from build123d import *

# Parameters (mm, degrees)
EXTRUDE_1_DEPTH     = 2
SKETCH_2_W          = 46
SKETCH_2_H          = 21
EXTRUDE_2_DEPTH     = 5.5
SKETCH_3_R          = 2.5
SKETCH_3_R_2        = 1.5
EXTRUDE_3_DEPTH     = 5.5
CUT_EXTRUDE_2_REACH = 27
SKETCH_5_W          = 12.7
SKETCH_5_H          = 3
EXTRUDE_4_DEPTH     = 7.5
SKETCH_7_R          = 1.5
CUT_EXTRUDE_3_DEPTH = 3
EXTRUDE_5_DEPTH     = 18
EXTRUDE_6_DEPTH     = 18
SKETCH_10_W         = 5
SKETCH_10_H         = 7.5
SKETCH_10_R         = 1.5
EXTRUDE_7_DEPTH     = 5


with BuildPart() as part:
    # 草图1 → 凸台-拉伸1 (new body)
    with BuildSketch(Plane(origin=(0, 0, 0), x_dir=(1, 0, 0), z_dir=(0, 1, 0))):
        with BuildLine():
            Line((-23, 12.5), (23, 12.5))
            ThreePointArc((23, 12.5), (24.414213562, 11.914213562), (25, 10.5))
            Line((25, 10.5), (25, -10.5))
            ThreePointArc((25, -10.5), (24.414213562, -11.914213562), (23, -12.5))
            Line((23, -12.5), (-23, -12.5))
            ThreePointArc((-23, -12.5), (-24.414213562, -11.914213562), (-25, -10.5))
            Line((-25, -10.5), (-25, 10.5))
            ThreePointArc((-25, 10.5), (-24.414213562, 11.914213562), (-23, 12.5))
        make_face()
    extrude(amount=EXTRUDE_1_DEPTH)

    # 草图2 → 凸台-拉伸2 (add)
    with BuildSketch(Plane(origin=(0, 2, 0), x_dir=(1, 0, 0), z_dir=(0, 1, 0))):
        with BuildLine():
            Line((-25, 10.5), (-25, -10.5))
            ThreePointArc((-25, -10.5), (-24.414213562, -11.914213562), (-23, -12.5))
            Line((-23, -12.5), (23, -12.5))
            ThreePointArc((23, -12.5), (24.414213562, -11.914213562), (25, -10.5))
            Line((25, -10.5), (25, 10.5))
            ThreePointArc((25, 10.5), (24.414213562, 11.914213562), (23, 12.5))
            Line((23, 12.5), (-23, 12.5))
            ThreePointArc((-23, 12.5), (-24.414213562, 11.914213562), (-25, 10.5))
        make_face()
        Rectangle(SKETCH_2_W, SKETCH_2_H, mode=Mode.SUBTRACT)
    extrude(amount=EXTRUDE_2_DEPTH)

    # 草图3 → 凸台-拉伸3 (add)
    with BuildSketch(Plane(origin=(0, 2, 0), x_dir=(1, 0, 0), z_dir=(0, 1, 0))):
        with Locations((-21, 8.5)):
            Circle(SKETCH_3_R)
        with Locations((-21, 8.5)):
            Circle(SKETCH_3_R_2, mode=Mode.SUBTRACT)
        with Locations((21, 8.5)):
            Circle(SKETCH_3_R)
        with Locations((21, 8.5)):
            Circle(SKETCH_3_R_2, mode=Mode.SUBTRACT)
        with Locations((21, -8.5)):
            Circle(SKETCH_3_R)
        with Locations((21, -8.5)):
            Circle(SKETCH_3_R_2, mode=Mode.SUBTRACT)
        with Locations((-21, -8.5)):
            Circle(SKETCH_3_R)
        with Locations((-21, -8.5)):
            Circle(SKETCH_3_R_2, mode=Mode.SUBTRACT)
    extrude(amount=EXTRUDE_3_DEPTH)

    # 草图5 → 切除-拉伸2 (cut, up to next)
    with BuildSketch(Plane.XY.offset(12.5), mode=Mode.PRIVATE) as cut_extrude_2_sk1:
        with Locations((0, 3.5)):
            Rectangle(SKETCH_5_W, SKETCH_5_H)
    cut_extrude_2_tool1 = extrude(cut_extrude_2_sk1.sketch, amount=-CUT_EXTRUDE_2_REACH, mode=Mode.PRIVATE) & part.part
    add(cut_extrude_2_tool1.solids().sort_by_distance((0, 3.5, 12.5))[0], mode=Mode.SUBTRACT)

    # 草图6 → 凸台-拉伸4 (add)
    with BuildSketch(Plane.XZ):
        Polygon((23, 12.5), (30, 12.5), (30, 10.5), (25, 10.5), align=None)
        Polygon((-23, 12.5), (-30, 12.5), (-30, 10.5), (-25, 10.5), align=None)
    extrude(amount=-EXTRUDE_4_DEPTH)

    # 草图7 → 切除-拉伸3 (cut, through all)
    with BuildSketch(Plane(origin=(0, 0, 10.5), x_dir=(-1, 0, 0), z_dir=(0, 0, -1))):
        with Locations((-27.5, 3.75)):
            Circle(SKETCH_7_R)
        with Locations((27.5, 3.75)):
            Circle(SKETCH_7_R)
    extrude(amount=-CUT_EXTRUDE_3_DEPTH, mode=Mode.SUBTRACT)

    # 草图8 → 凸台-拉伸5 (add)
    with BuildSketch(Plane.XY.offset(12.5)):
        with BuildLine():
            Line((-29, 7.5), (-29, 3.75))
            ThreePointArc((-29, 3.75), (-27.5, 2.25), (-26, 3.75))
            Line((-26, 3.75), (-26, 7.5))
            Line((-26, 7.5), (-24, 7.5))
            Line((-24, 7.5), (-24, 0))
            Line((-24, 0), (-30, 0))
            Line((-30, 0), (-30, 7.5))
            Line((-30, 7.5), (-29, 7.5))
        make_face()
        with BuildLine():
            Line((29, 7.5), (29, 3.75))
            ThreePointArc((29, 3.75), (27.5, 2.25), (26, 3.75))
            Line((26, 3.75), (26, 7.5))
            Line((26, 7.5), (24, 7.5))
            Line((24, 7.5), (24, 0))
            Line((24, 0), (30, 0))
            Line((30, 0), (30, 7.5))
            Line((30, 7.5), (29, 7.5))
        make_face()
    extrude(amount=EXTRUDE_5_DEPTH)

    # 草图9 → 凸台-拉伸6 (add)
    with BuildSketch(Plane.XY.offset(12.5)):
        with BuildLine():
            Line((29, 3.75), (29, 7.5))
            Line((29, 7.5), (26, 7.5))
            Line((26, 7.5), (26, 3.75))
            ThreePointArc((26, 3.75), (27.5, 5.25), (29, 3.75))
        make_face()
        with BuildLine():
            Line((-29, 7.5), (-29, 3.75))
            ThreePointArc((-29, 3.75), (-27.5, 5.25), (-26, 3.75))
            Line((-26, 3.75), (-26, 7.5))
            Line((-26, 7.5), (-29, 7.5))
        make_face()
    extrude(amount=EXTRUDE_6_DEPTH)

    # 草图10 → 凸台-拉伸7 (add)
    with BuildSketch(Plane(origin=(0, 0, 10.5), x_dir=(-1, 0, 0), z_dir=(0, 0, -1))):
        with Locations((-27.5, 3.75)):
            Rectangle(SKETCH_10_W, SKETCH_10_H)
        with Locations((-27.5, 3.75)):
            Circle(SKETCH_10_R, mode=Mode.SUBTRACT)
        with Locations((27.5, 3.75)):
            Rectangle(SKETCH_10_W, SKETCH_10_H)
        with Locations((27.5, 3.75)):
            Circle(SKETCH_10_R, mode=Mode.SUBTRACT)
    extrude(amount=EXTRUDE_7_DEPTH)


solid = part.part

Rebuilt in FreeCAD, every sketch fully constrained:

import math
import FreeCAD as App
import Part
import Sketcher
from FreeCAD import Vector
Q = App.Units.Quantity


def add_polygon(sketch, points):
    """Adds a closed chain of lines whose ends are joined by coincident constraints."""
    first, n = sketch.GeometryCount, len(points)
    for a, b in zip(points, points[1:] + points[:1]):
        sketch.addGeometry(Part.LineSegment(App.Vector(*a, 0), App.Vector(*b, 0)), False)
    for i in range(n):
        sketch.addConstraint(Sketcher.Constraint("Coincident", first + i, 2, first + (i + 1) % n, 1))

doc = App.newDocument("Part")
params = doc.addObject("Spreadsheet::Sheet", "Params")
for row, (alias, value) in enumerate([
    ("sketch1_radius", "2 mm"),
    ("sketch1_width", "46 mm"),
    ("sketch1_height", "21 mm"),
    ("pad1_length", "2 mm"),
    ("sketch2_radius", "2 mm"),
    ("sketch2_width", "46 mm"),
    ("sketch2_height", "21 mm"),
    ("pad2_length", "5.5 mm"),
    ("sketch3_diameter", "5 mm"),
    ("sketch3_diameter2", "3 mm"),
    ("pad3_length", "5.5 mm"),
    ("sketch4_height", "3 mm"),
    ("sketch4_width", "12.7 mm"),
    ("sketch5_width", "7 mm"),
    ("sketch5_width2", "5 mm"),
    ("pad4_length", "7.5 mm"),
    ("sketch6_diameter", "3 mm"),
    ("sketch7_radius", "1.5 mm"),
    ("sketch7_width", "1 mm"),
    ("sketch7_width2", "6 mm"),
    ("sketch7_height", "7.5 mm"),
    ("sketch7_height2", "3.75 mm"),
    ("pad5_length", "18 mm"),
    ("sketch8_radius", "1.5 mm"),
    ("sketch8_height", "3.75 mm"),
    ("pad6_length", "18 mm"),
    ("sketch9_diameter", "3 mm"),
    ("sketch9_width", "5 mm"),
    ("sketch9_height", "7.5 mm"),
    ("pad7_length", "5 mm"),
], start=1):
    params.set(f"A{row}", alias)
    params.set(f"B{row}", "=" + value)
    params.setAlias(f"B{row}", alias)

body = doc.addObject("PartDesign::Body", "Body")

# Sketch on XZ plane
sketch1 = body.newObject("Sketcher::SketchObject", "Sketch")
sketch1.AttachmentSupport = (doc.getObject("XZ_Plane"), [""])
sketch1.MapMode = "FlatFace"
sketch1.addGeometry([
    Part.LineSegment(Vector(23, -12.5, 0), Vector(-23, -12.5, 0)),  # 0
    Part.ArcOfCircle(Part.Circle(Vector(-23, -10.5, 0), Vector(0, 0, 1), 2), math.radians(-180), math.radians(-90)),  # 1
    Part.LineSegment(Vector(-25, -10.5, 0), Vector(-25, 10.5, 0)),  # 2
    Part.ArcOfCircle(Part.Circle(Vector(-23, 10.5, 0), Vector(0, 0, 1), 2), math.radians(90), math.radians(180)),  # 3
    Part.LineSegment(Vector(-23, 12.5, 0), Vector(23, 12.5, 0)),  # 4
    Part.ArcOfCircle(Part.Circle(Vector(23, 10.5, 0), Vector(0, 0, 1), 2), math.radians(0), math.radians(90)),  # 5
    Part.LineSegment(Vector(25, 10.5, 0), Vector(25, -10.5, 0)),  # 6
    Part.ArcOfCircle(Part.Circle(Vector(23, -10.5, 0), Vector(0, 0, 1), 2), math.radians(-90), math.radians(0)),  # 7
], False)
sketch1.addConstraint([
    Sketcher.Constraint("Tangent", 0, 2, 1, 2),
    Sketcher.Constraint("Tangent", 1, 1, 2, 1),
    Sketcher.Constraint("Tangent", 2, 2, 3, 2),
    Sketcher.Constraint("Tangent", 3, 1, 4, 1),
    Sketcher.Constraint("Tangent", 4, 2, 5, 2),
    Sketcher.Constraint("Tangent", 5, 1, 6, 1),
    Sketcher.Constraint("Tangent", 6, 2, 7, 2),
    Sketcher.Constraint("Tangent", 7, 1, 0, 1),
    Sketcher.Constraint("Horizontal", 0),
    Sketcher.Constraint("Vertical", 2),
    Sketcher.Constraint("Horizontal", 4),
    Sketcher.Constraint("Vertical", 6),
    Sketcher.Constraint("Equal", 1, 3),
    Sketcher.Constraint("Equal", 3, 5),
    Sketcher.Constraint("Equal", 5, 7),
    Sketcher.Constraint("Symmetric", 1, 3, 5, 3, -1, 1),
    Sketcher.Constraint("Radius", 1, Q("2 mm")),
    Sketcher.Constraint("DistanceX", 0, 2, 0, 1, Q("46 mm")),
    Sketcher.Constraint("DistanceY", 2, 1, 2, 2, Q("21 mm")),
])
sketch1.setExpression("Constraints[16]", "Params.sketch1_radius")
sketch1.setExpression("Constraints[17]", "Params.sketch1_width")
sketch1.setExpression("Constraints[18]", "Params.sketch1_height")
pad1 = body.newObject("PartDesign::Pad", "Pad")
pad1.Profile = sketch1
pad1.setExpression("Length", "Params.pad1_length")
pad1.Reversed = True

# Sketch on XZ plane
sketch2 = body.newObject("Sketcher::SketchObject", "Sketch001")
sketch2.AttachmentSupport = (doc.getObject("XZ_Plane"), [""])
sketch2.MapMode = "FlatFace"
sketch2.AttachmentOffset = App.Placement(Vector(0, 0, -2), App.Rotation())
sketch2.addGeometry(Part.LineSegment(Vector(-25, -10.5, 0), Vector(-25, 10.5, 0)), False)  # 0
sketch2.addGeometry(Part.ArcOfCircle(Part.Circle(Vector(-23, 10.5, 0), Vector(0, 0, 1), 2), math.radians(90), math.radians(180)), False)  # 1
sketch2.addGeometry(Part.LineSegment(Vector(-23, 12.5, 0), Vector(23, 12.5, 0)), False)  # 2
sketch2.addGeometry(Part.ArcOfCircle(Part.Circle(Vector(23, 10.5, 0), Vector(0, 0, 1), 2), math.radians(0), math.radians(90)), False)  # 3
sketch2.addGeometry(Part.LineSegment(Vector(25, 10.5, 0), Vector(25, -10.5, 0)), False)  # 4
sketch2.addGeometry(Part.ArcOfCircle(Part.Circle(Vector(23, -10.5, 0), Vector(0, 0, 1), 2), math.radians(-90), math.radians(0)), False)  # 5
sketch2.addGeometry(Part.LineSegment(Vector(23, -12.5, 0), Vector(-23, -12.5, 0)), False)  # 6
sketch2.addGeometry(Part.ArcOfCircle(Part.Circle(Vector(-23, -10.5, 0), Vector(0, 0, 1), 2), math.radians(-180), math.radians(-90)), False)  # 7
add_polygon(sketch2, [(23, 10.5), (-23, 10.5), (-23, -10.5), (23, -10.5)])  # lines 8-11
sketch2.addConstraint([
    Sketcher.Constraint("Tangent", 0, 2, 1, 2),
    Sketcher.Constraint("Tangent", 1, 1, 2, 1),
    Sketcher.Constraint("Tangent", 2, 2, 3, 2),
    Sketcher.Constraint("Tangent", 3, 1, 4, 1),
    Sketcher.Constraint("Tangent", 4, 2, 5, 2),
    Sketcher.Constraint("Tangent", 5, 1, 6, 1),
    Sketcher.Constraint("Tangent", 6, 2, 7, 2),
    Sketcher.Constraint("Tangent", 7, 1, 0, 1),
    Sketcher.Constraint("Vertical", 0),
    Sketcher.Constraint("Horizontal", 2),
    Sketcher.Constraint("Vertical", 4),
    Sketcher.Constraint("Horizontal", 6),
    Sketcher.Constraint("Horizontal", 8),
    Sketcher.Constraint("Vertical", 9),
    Sketcher.Constraint("Horizontal", 10),
    Sketcher.Constraint("Vertical", 11),
    Sketcher.Constraint("Coincident", 8, 2, 1, 3),
    Sketcher.Constraint("Coincident", 9, 2, 7, 3),
    Sketcher.Constraint("Coincident", 10, 2, 5, 3),
    Sketcher.Constraint("Equal", 1, 3),
    Sketcher.Constraint("Symmetric", 1, 3, 5, 3, -1, 1),
    Sketcher.Constraint("Radius", 1, Q("2 mm")),
    Sketcher.Constraint("DistanceX", 2, 1, 2, 2, Q("46 mm")),
    Sketcher.Constraint("DistanceY", 0, 1, 0, 2, Q("21 mm")),
])
sketch2.setExpression("Constraints[25]", "Params.sketch2_radius")
sketch2.setExpression("Constraints[26]", "Params.sketch2_width")
sketch2.setExpression("Constraints[27]", "Params.sketch2_height")
pad2 = body.newObject("PartDesign::Pad", "Pad001")
pad2.Profile = sketch2
pad2.setExpression("Length", "Params.pad2_length")
pad2.Reversed = True

# Sketch on XZ plane
sketch3 = body.newObject("Sketcher::SketchObject", "Sketch002")
sketch3.AttachmentSupport = (doc.getObject("XZ_Plane"), [""])
sketch3.MapMode = "FlatFace"
sketch3.AttachmentOffset = App.Placement(Vector(0, 0, -2), App.Rotation())
sketch3.addGeometry([
    Part.Circle(Vector(-21, -8.5, 0), Vector(0, 0, 1), 2.5),  # 0
    Part.Circle(Vector(-21, -8.5, 0), Vector(0, 0, 1), 1.5),  # 1
    Part.Circle(Vector(21, -8.5, 0), Vector(0, 0, 1), 2.5),  # 2
    Part.Circle(Vector(21, -8.5, 0), Vector(0, 0, 1), 1.5),  # 3
    Part.Circle(Vector(21, 8.5, 0), Vector(0, 0, 1), 2.5),  # 4
    Part.Circle(Vector(21, 8.5, 0), Vector(0, 0, 1), 1.5),  # 5
    Part.Circle(Vector(-21, 8.5, 0), Vector(0, 0, 1), 2.5),  # 6
    Part.Circle(Vector(-21, 8.5, 0), Vector(0, 0, 1), 1.5),  # 7
], False)
sketch3.addConstraint([
    Sketcher.Constraint("Coincident", 1, 3, 0, 3),
    Sketcher.Constraint("Coincident", 3, 3, 2, 3),
    Sketcher.Constraint("Coincident", 5, 3, 4, 3),
    Sketcher.Constraint("Coincident", 7, 3, 6, 3),
    Sketcher.Constraint("Equal", 0, 2),
    Sketcher.Constraint("Equal", 1, 3),
    Sketcher.Constraint("Equal", 2, 4),
    Sketcher.Constraint("Equal", 3, 5),
    Sketcher.Constraint("Equal", 4, 6),
    Sketcher.Constraint("Equal", 5, 7),
    Sketcher.Constraint("Symmetric", 0, 3, 4, 3, -1, 1),
    Sketcher.Constraint("Symmetric", 2, 3, 6, 3, -1, 1),
    Sketcher.Constraint("Symmetric", 0, 3, 2, 3, -2),
    Sketcher.Constraint("Diameter", 0, Q("5 mm")),
    Sketcher.Constraint("Diameter", 1, Q("3 mm")),
    Sketcher.Constraint("DistanceX", 0, 3, -1, 1, Q("21 mm")),
    Sketcher.Constraint("DistanceY", 2, 3, 4, 3, Q("17 mm")),
])
sketch3.setExpression("Constraints[13]", "Params.sketch3_diameter")
sketch3.setExpression("Constraints[14]", "Params.sketch3_diameter2")
pad3 = body.newObject("PartDesign::Pad", "Pad002")
pad3.Profile = sketch3
pad3.setExpression("Length", "Params.pad3_length")
pad3.Reversed = True

# Sketch on XY plane
sketch4 = body.newObject("Sketcher::SketchObject", "Sketch003")
sketch4.AttachmentSupport = (doc.getObject("XY_Plane"), [""])
sketch4.MapMode = "FlatFace"
sketch4.AttachmentOffset = App.Placement(Vector(0, 0, 12.5), App.Rotation())
add_polygon(sketch4, [(-6.35, 5), (-6.35, 2), (6.35, 2), (6.35, 5)])  # lines 0-3
sketch4.addConstraint([
    Sketcher.Constraint("Vertical", 0),
    Sketcher.Constraint("Horizontal", 1),
    Sketcher.Constraint("Vertical", 2),
    Sketcher.Constraint("Horizontal", 3),
    Sketcher.Constraint("DistanceY", 0, 2, 0, 1, Q("3 mm")),
    Sketcher.Constraint("DistanceX", 1, 1, 1, 2, Q("12.7 mm")),
    Sketcher.Constraint("DistanceY", -1, 1, 0, 2, Q("2 mm")),
    Sketcher.Constraint("DistanceX", 0, 2, -1, 1, Q("6.35 mm")),
])
sketch4.setExpression("Constraints[8]", "Params.sketch4_height")
sketch4.setExpression("Constraints[9]", "Params.sketch4_width")
pocket1 = body.newObject("PartDesign::Pocket", "Pocket")
pocket1.Profile = sketch4
pocket1.Type = "UpToFirst"

# Sketch on XZ plane
sketch5 = body.newObject("Sketcher::SketchObject", "Sketch004")
sketch5.AttachmentSupport = (doc.getObject("XZ_Plane"), [""])
sketch5.MapMode = "FlatFace"
add_polygon(sketch5, [(30, 12.5), (23, 12.5), (25, 10.5), (30, 10.5)])  # lines 0-3
add_polygon(sketch5, [(-23, 12.5), (-30, 12.5), (-30, 10.5), (-25, 10.5)])  # lines 4-7
sketch5.addConstraint([
    Sketcher.Constraint("Horizontal", 0),
    Sketcher.Constraint("Horizontal", 2),
    Sketcher.Constraint("Vertical", 3),
    Sketcher.Constraint("Horizontal", 4),
    Sketcher.Constraint("Vertical", 5),
    Sketcher.Constraint("Horizontal", 6),
    Sketcher.Constraint("Symmetric", 3, 2, 4, 2, -2),
    Sketcher.Constraint("Symmetric", 1, 2, 6, 2, -2),
    Sketcher.Constraint("Perpendicular", 1, 7),
    Sketcher.Constraint("Equal", 0, 4),
    Sketcher.Constraint("DistanceX", 0, 2, 0, 1, Q("7 mm")),
    Sketcher.Constraint("DistanceX", 2, 1, 2, 2, Q("5 mm")),
    Sketcher.Constraint("DistanceX", -1, 1, 0, 2, Q("23 mm")),
    Sketcher.Constraint("DistanceY", -1, 1, 0, 2, Q("12.5 mm")),
])
sketch5.setExpression("Constraints[18]", "Params.sketch5_width")
sketch5.setExpression("Constraints[19]", "Params.sketch5_width2")
pad4 = body.newObject("PartDesign::Pad", "Pad003")
pad4.Profile = sketch5
pad4.setExpression("Length", "Params.pad4_length")
pad4.Reversed = True

# Sketch on XY plane
sketch6 = body.newObject("Sketcher::SketchObject", "Sketch005")
sketch6.AttachmentSupport = (doc.getObject("XY_Plane"), [""])
sketch6.MapMode = "FlatFace"
sketch6.AttachmentOffset = App.Placement(Vector(0, 0, 10.5), App.Rotation())
sketch6.addGeometry([
    Part.Circle(Vector(27.5, 3.75, 0), Vector(0, 0, 1), 1.5),
    Part.Circle(Vector(-27.5, 3.75, 0), Vector(0, 0, 1), 1.5),
], False)
sketch6.addConstraint([
    Sketcher.Constraint("Equal", 0, 1),
    Sketcher.Constraint("Symmetric", 0, 3, 1, 3, -2),
    Sketcher.Constraint("Diameter", 0, Q("3 mm")),
    Sketcher.Constraint("DistanceX", 1, 3, 0, 3, Q("55 mm")),
    Sketcher.Constraint("DistanceY", -1, 1, 0, 3, Q("3.75 mm")),
])
sketch6.setExpression("Constraints[2]", "Params.sketch6_diameter")
pocket2 = body.newObject("PartDesign::Pocket", "Pocket001")
pocket2.Profile = sketch6
pocket2.Type = "ThroughAll"
pocket2.Reversed = True

# Sketch on XY plane
sketch7 = body.newObject("Sketcher::SketchObject", "Sketch006")
sketch7.AttachmentSupport = (doc.getObject("XY_Plane"), [""])
sketch7.MapMode = "FlatFace"
sketch7.AttachmentOffset = App.Placement(Vector(0, 0, 12.5), App.Rotation())
sketch7.addGeometry([
    Part.LineSegment(Vector(-29, 3.75, 0), Vector(-29, 7.5, 0)),  # 0
    Part.LineSegment(Vector(-29, 7.5, 0), Vector(-30, 7.5, 0)),  # 1
    Part.LineSegment(Vector(-30, 7.5, 0), Vector(-30, 0, 0)),  # 2
    Part.LineSegment(Vector(-30, 0, 0), Vector(-24, 0, 0)),  # 3
    Part.LineSegment(Vector(-24, 0, 0), Vector(-24, 7.5, 0)),  # 4
    Part.LineSegment(Vector(-24, 7.5, 0), Vector(-26, 7.5, 0)),  # 5
    Part.LineSegment(Vector(-26, 7.5, 0), Vector(-26, 3.75, 0)),  # 6
    Part.ArcOfCircle(Part.Circle(Vector(-27.5, 3.75, 0), Vector(0, 0, 1), 1.5), math.radians(180), math.radians(360)),  # 7
    Part.LineSegment(Vector(29, 7.5, 0), Vector(29, 3.75, 0)),  # 8
    Part.ArcOfCircle(Part.Circle(Vector(27.5, 3.75, 0), Vector(0, 0, 1), 1.5), math.radians(180), math.radians(360)),  # 9
    Part.LineSegment(Vector(26, 3.75, 0), Vector(26, 7.5, 0)),  # 10
    Part.LineSegment(Vector(26, 7.5, 0), Vector(24, 7.5, 0)),  # 11
    Part.LineSegment(Vector(24, 7.5, 0), Vector(24, 0, 0)),  # 12
    Part.LineSegment(Vector(24, 0, 0), Vector(30, 0, 0)),  # 13
    Part.LineSegment(Vector(30, 0, 0), Vector(30, 7.5, 0)),  # 14
    Part.LineSegment(Vector(30, 7.5, 0), Vector(29, 7.5, 0)),  # 15
], False)
sketch7.addConstraint([
    Sketcher.Constraint("Coincident", 0, 2, 1, 1),
    Sketcher.Constraint("Coincident", 1, 2, 2, 1),
    Sketcher.Constraint("Coincident", 2, 2, 3, 1),
    Sketcher.Constraint("Coincident", 3, 2, 4, 1),
    Sketcher.Constraint("Coincident", 4, 2, 5, 1),
    Sketcher.Constraint("Coincident", 5, 2, 6, 1),
    Sketcher.Constraint("Tangent", 6, 2, 7, 2),
    Sketcher.Constraint("Tangent", 7, 1, 0, 1),
    Sketcher.Constraint("Tangent", 8, 2, 9, 2),
    Sketcher.Constraint("Tangent", 9, 1, 10, 1),
    Sketcher.Constraint("Coincident", 10, 2, 11, 1),
    Sketcher.Constraint("Coincident", 11, 2, 12, 1),
    Sketcher.Constraint("Coincident", 12, 2, 13, 1),
    Sketcher.Constraint("Coincident", 13, 2, 14, 1),
    Sketcher.Constraint("Coincident", 14, 2, 15, 1),
    Sketcher.Constraint("Coincident", 15, 2, 8, 1),
    Sketcher.Constraint("Vertical", 0),
    Sketcher.Constraint("Horizontal", 1),
    Sketcher.Constraint("Vertical", 2),
    Sketcher.Constraint("Horizontal", 3),
    Sketcher.Constraint("Vertical", 4),
    Sketcher.Constraint("Horizontal", 5),
    Sketcher.Constraint("Vertical", 6),
    Sketcher.Constraint("Vertical", 8),
    Sketcher.Constraint("Vertical", 10),
    Sketcher.Constraint("Horizontal", 11),
    Sketcher.Constraint("Vertical", 12),
    Sketcher.Constraint("Horizontal", 13),
    Sketcher.Constraint("Vertical", 14),
    Sketcher.Constraint("Horizontal", 15),
    Sketcher.Constraint("Equal", 7, 9),
    Sketcher.Constraint("Symmetric", 3, 2, 12, 2, -1, 1),
    Sketcher.Constraint("Symmetric", 7, 3, 9, 3, -2),
    Sketcher.Constraint("Symmetric", 2, 2, 13, 2, -2),
    Sketcher.Constraint("Horizontal", 1, 2, 4, 2),
    Sketcher.Constraint("Horizontal", 5, 2, 10, 2),
    Sketcher.Constraint("Horizontal", 11, 2, 14, 2),
    Sketcher.Constraint("Radius", 7, Q("1.5 mm")),
    Sketcher.Constraint("DistanceX", 1, 2, 1, 1, Q("1 mm")),
    Sketcher.Constraint("DistanceX", 3, 1, 3, 2, Q("6 mm")),
    Sketcher.Constraint("DistanceY", 2, 2, 2, 1, Q("7.5 mm")),
    Sketcher.Constraint("DistanceX", 0, 2, -1, 1, Q("29 mm")),
    Sketcher.Constraint("DistanceY", 0, 1, 0, 2, Q("3.75 mm")),
])
sketch7.setExpression("Constraints[37]", "Params.sketch7_radius")
sketch7.setExpression("Constraints[38]", "Params.sketch7_width")
sketch7.setExpression("Constraints[39]", "Params.sketch7_width2")
sketch7.setExpression("Constraints[40]", "Params.sketch7_height")
sketch7.setExpression("Constraints[42]", "Params.sketch7_height2")
pad5 = body.newObject("PartDesign::Pad", "Pad004")
pad5.Profile = sketch7
pad5.setExpression("Length", "Params.pad5_length")

# Sketch on XY plane
sketch8 = body.newObject("Sketcher::SketchObject", "Sketch007")
sketch8.AttachmentSupport = (doc.getObject("XY_Plane"), [""])
sketch8.MapMode = "FlatFace"
sketch8.AttachmentOffset = App.Placement(Vector(0, 0, 12.5), App.Rotation())
sketch8.addGeometry([
    Part.LineSegment(Vector(29, 3.75, 0), Vector(29, 7.5, 0)),  # 0
    Part.LineSegment(Vector(29, 7.5, 0), Vector(26, 7.5, 0)),  # 1
    Part.LineSegment(Vector(26, 7.5, 0), Vector(26, 3.75, 0)),  # 2
    Part.ArcOfCircle(Part.Circle(Vector(27.5, 3.75, 0), Vector(0, 0, 1), 1.5), math.radians(0), math.radians(180)),  # 3
    Part.LineSegment(Vector(-29, 7.5, 0), Vector(-29, 3.75, 0)),  # 4
    Part.ArcOfCircle(Part.Circle(Vector(-27.5, 3.75, 0), Vector(0, 0, 1), 1.5), math.radians(0), math.radians(180)),  # 5
    Part.LineSegment(Vector(-26, 3.75, 0), Vector(-26, 7.5, 0)),  # 6
    Part.LineSegment(Vector(-26, 7.5, 0), Vector(-29, 7.5, 0)),  # 7
], False)
sketch8.addConstraint([
    Sketcher.Constraint("Coincident", 0, 2, 1, 1),
    Sketcher.Constraint("Coincident", 1, 2, 2, 1),
    Sketcher.Constraint("Tangent", 2, 2, 3, 2),
    Sketcher.Constraint("Tangent", 3, 1, 0, 1),
    Sketcher.Constraint("Tangent", 4, 2, 5, 2),
    Sketcher.Constraint("Tangent", 5, 1, 6, 1),
    Sketcher.Constraint("Coincident", 6, 2, 7, 1),
    Sketcher.Constraint("Coincident", 7, 2, 4, 1),
    Sketcher.Constraint("Vertical", 0),
    Sketcher.Constraint("Horizontal", 1),
    Sketcher.Constraint("Vertical", 2),
    Sketcher.Constraint("Vertical", 4),
    Sketcher.Constraint("Vertical", 6),
    Sketcher.Constraint("Horizontal", 7),
    Sketcher.Constraint("Equal", 3, 5),
    Sketcher.Constraint("Symmetric", 3, 3, 5, 3, -2),
    Sketcher.Constraint("Horizontal", 1, 2, 6, 2),
    Sketcher.Constraint("Radius", 3, Q("1.5 mm")),
    Sketcher.Constraint("DistanceX", -1, 1, 0, 2, Q("29 mm")),
    Sketcher.Constraint("DistanceY", 0, 1, 0, 2, Q("3.75 mm")),
    Sketcher.Constraint("DistanceY", -1, 1, 0, 2, Q("7.5 mm")),
])
sketch8.setExpression("Constraints[17]", "Params.sketch8_radius")
sketch8.setExpression("Constraints[19]", "Params.sketch8_height")
pad6 = body.newObject("PartDesign::Pad", "Pad005")
pad6.Profile = sketch8
pad6.setExpression("Length", "Params.pad6_length")

# Sketch on XY plane
sketch9 = body.newObject("Sketcher::SketchObject", "Sketch008")
sketch9.AttachmentSupport = (doc.getObject("XY_Plane"), [""])
sketch9.MapMode = "FlatFace"
sketch9.AttachmentOffset = App.Placement(Vector(0, 0, 10.5), App.Rotation())
add_polygon(sketch9, [(30, 7.5), (30, 0), (25, 0), (25, 7.5)])  # lines 0-3
sketch9.addGeometry(Part.Circle(Vector(27.5, 3.75, 0), Vector(0, 0, 1), 1.5), False)  # 4
add_polygon(sketch9, [(-25, 7.5), (-25, 0), (-30, 0), (-30, 7.5)])  # lines 5-8
sketch9.addGeometry(Part.Circle(Vector(-27.5, 3.75, 0), Vector(0, 0, 1), 1.5), False)  # 9
sketch9.addConstraint([
    Sketcher.Constraint("Vertical", 0),
    Sketcher.Constraint("Horizontal", 1),
    Sketcher.Constraint("Vertical", 2),
    Sketcher.Constraint("Horizontal", 3),
    Sketcher.Constraint("Vertical", 5),
    Sketcher.Constraint("Horizontal", 6),
    Sketcher.Constraint("Vertical", 7),
    Sketcher.Constraint("Horizontal", 8),
    Sketcher.Constraint("Equal", 4, 9),
    Sketcher.Constraint("Symmetric", 1, 2, 5, 2, -1, 1),
    Sketcher.Constraint("Symmetric", 4, 3, 9, 3, -2),
    Sketcher.Constraint("Symmetric", 0, 2, 6, 2, -2),
    Sketcher.Constraint("Horizontal", 3, 2, 7, 2),
    Sketcher.Constraint("Diameter", 4, Q("3 mm")),
    Sketcher.Constraint("DistanceX", 1, 2, 1, 1, Q("5 mm")),
    Sketcher.Constraint("DistanceY", 0, 2, 0, 1, Q("7.5 mm")),
    Sketcher.Constraint("DistanceX", -1, 1, 0, 2, Q("30 mm")),
    Sketcher.Constraint("DistanceX", 9, 3, 4, 3, Q("55 mm")),
    Sketcher.Constraint("DistanceY", -1, 1, 4, 3, Q("3.75 mm")),
])
sketch9.setExpression("Constraints[21]", "Params.sketch9_diameter")
sketch9.setExpression("Constraints[22]", "Params.sketch9_width")
sketch9.setExpression("Constraints[23]", "Params.sketch9_height")
pad7 = body.newObject("PartDesign::Pad", "Pad006")
pad7.Profile = sketch9
pad7.setExpression("Length", "Params.pad7_length")
pad7.Reversed = True

doc.recompute()
